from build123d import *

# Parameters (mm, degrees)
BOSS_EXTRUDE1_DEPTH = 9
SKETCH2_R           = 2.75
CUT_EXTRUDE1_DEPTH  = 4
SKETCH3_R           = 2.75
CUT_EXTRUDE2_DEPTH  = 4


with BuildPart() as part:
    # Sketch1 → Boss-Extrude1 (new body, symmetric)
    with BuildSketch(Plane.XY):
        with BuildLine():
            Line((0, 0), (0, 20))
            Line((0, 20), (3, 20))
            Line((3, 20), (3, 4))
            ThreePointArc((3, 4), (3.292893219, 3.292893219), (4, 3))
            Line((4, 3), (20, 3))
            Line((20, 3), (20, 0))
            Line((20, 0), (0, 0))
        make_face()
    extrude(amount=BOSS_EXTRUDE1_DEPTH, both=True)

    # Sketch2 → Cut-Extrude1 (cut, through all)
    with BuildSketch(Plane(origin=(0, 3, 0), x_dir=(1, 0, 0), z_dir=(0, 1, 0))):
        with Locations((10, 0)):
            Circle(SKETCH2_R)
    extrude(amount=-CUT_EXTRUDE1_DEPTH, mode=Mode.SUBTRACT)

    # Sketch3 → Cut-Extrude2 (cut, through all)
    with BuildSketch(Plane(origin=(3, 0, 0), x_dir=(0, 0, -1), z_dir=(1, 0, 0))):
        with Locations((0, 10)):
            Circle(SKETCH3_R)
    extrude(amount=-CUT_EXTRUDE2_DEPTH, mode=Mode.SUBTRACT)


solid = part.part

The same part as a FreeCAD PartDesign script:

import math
import FreeCAD as App
import Part
import Sketcher
Q = App.Units.Quantity

doc = App.newDocument("Part")
body = doc.addObject("PartDesign::Body", "Body")

sketch1 = doc.addObject("Sketcher::SketchObject", "Sketch")
body.addObject(sketch1)
sketch1.AttachmentSupport = (doc.XY_Plane, [""])
sketch1.MapMode = "FlatFace"
sketch1.addGeometry([
    Part.LineSegment(App.Vector(0, 20, 0), App.Vector(0, 0, 0)),
    Part.LineSegment(App.Vector(0, 0, 0), App.Vector(20, 0, 0)),
    Part.LineSegment(App.Vector(20, 0, 0), App.Vector(20, 3, 0)),
    Part.LineSegment(App.Vector(20, 3, 0), App.Vector(4, 3, 0)),
    Part.ArcOfCircle(Part.Circle(App.Vector(4, 4, 0), App.Vector(0, 0, 1), 1), math.radians(-180), math.radians(-90)),
    Part.LineSegment(App.Vector(3, 4, 0), App.Vector(3, 20, 0)),
    Part.LineSegment(App.Vector(3, 20, 0), App.Vector(0, 20, 0)),
], False)
sketch1.addConstraint([
    Sketcher.Constraint("Coincident", 0, 2, 1, 1),
    Sketcher.Constraint("Coincident", 1, 2, 2, 1),
    Sketcher.Constraint("Coincident", 2, 2, 3, 1),
    Sketcher.Constraint("Tangent", 3, 2, 4, 2),
    Sketcher.Constraint("Tangent", 4, 1, 5, 1),
    Sketcher.Constraint("Coincident", 5, 2, 6, 1),
    Sketcher.Constraint("Coincident", 6, 2, 0, 1),
    Sketcher.Constraint("Vertical", 0),
    Sketcher.Constraint("Horizontal", 1),
    Sketcher.Constraint("Vertical", 2),
    Sketcher.Constraint("Horizontal", 3),
    Sketcher.Constraint("Vertical", 5),
    Sketcher.Constraint("Horizontal", 6),
    Sketcher.Constraint("Coincident", 0, 2, -1, 1),
    Sketcher.Constraint("Equal", 1, 0),
    Sketcher.Constraint("Equal", 6, 2),
    Sketcher.Constraint("Radius", 4, Q("1 mm")),
    Sketcher.Constraint("DistanceX", 1, 1, 1, 2, Q("20 mm")),
    Sketcher.Constraint("DistanceX", 3, 2, 3, 1, Q("16 mm")),
])
pad1 = doc.addObject("PartDesign::Pad", "Pad")
body.addObject(pad1)
pad1.Profile = sketch1
pad1.Length = 18
pad1.Midplane = True

sketch2 = doc.addObject("Sketcher::SketchObject", "Sketch001")
body.addObject(sketch2)
sketch2.AttachmentSupport = (doc.XZ_Plane, [""])
sketch2.MapMode = "FlatFace"
sketch2.AttachmentOffset = App.Placement(App.Vector(0, 0, -3), App.Rotation())
sketch2.addGeometry(Part.Circle(App.Vector(10, 0, 0), App.Vector(0, 0, 1), 2.75), False)
sketch2.addConstraint([
    Sketcher.Constraint("PointOnObject", 0, 3, -1),
    Sketcher.Constraint("Diameter", 0, Q("5.5 mm")),
    Sketcher.Constraint("DistanceX", -1, 1, 0, 3, Q("10 mm")),
])
pocket1 = doc.addObject("PartDesign::Pocket", "Pocket")
body.addObject(pocket1)
pocket1.Profile = sketch2
pocket1.Type = "ThroughAll"
pocket1.Reversed = True

sketch3 = doc.addObject("Sketcher::SketchObject", "Sketch002")
body.addObject(sketch3)
sketch3.AttachmentSupport = (doc.YZ_Plane, [""])
sketch3.MapMode = "FlatFace"
sketch3.AttachmentOffset = App.Placement(App.Vector(0, 0, 3), App.Rotation())
sketch3.addGeometry(Part.Circle(App.Vector(10, 0, 0), App.Vector(0, 0, 1), 2.75), False)
sketch3.addConstraint([
    Sketcher.Constraint("PointOnObject", 0, 3, -1),
    Sketcher.Constraint("Diameter", 0, Q("5.5 mm")),
    Sketcher.Constraint("DistanceX", -1, 1, 0, 3, Q("10 mm")),
])
pocket2 = doc.addObject("PartDesign::Pocket", "Pocket001")
body.addObject(pocket2)
pocket2.Profile = sketch3
pocket2.Type = "ThroughAll"

doc.recompute()
